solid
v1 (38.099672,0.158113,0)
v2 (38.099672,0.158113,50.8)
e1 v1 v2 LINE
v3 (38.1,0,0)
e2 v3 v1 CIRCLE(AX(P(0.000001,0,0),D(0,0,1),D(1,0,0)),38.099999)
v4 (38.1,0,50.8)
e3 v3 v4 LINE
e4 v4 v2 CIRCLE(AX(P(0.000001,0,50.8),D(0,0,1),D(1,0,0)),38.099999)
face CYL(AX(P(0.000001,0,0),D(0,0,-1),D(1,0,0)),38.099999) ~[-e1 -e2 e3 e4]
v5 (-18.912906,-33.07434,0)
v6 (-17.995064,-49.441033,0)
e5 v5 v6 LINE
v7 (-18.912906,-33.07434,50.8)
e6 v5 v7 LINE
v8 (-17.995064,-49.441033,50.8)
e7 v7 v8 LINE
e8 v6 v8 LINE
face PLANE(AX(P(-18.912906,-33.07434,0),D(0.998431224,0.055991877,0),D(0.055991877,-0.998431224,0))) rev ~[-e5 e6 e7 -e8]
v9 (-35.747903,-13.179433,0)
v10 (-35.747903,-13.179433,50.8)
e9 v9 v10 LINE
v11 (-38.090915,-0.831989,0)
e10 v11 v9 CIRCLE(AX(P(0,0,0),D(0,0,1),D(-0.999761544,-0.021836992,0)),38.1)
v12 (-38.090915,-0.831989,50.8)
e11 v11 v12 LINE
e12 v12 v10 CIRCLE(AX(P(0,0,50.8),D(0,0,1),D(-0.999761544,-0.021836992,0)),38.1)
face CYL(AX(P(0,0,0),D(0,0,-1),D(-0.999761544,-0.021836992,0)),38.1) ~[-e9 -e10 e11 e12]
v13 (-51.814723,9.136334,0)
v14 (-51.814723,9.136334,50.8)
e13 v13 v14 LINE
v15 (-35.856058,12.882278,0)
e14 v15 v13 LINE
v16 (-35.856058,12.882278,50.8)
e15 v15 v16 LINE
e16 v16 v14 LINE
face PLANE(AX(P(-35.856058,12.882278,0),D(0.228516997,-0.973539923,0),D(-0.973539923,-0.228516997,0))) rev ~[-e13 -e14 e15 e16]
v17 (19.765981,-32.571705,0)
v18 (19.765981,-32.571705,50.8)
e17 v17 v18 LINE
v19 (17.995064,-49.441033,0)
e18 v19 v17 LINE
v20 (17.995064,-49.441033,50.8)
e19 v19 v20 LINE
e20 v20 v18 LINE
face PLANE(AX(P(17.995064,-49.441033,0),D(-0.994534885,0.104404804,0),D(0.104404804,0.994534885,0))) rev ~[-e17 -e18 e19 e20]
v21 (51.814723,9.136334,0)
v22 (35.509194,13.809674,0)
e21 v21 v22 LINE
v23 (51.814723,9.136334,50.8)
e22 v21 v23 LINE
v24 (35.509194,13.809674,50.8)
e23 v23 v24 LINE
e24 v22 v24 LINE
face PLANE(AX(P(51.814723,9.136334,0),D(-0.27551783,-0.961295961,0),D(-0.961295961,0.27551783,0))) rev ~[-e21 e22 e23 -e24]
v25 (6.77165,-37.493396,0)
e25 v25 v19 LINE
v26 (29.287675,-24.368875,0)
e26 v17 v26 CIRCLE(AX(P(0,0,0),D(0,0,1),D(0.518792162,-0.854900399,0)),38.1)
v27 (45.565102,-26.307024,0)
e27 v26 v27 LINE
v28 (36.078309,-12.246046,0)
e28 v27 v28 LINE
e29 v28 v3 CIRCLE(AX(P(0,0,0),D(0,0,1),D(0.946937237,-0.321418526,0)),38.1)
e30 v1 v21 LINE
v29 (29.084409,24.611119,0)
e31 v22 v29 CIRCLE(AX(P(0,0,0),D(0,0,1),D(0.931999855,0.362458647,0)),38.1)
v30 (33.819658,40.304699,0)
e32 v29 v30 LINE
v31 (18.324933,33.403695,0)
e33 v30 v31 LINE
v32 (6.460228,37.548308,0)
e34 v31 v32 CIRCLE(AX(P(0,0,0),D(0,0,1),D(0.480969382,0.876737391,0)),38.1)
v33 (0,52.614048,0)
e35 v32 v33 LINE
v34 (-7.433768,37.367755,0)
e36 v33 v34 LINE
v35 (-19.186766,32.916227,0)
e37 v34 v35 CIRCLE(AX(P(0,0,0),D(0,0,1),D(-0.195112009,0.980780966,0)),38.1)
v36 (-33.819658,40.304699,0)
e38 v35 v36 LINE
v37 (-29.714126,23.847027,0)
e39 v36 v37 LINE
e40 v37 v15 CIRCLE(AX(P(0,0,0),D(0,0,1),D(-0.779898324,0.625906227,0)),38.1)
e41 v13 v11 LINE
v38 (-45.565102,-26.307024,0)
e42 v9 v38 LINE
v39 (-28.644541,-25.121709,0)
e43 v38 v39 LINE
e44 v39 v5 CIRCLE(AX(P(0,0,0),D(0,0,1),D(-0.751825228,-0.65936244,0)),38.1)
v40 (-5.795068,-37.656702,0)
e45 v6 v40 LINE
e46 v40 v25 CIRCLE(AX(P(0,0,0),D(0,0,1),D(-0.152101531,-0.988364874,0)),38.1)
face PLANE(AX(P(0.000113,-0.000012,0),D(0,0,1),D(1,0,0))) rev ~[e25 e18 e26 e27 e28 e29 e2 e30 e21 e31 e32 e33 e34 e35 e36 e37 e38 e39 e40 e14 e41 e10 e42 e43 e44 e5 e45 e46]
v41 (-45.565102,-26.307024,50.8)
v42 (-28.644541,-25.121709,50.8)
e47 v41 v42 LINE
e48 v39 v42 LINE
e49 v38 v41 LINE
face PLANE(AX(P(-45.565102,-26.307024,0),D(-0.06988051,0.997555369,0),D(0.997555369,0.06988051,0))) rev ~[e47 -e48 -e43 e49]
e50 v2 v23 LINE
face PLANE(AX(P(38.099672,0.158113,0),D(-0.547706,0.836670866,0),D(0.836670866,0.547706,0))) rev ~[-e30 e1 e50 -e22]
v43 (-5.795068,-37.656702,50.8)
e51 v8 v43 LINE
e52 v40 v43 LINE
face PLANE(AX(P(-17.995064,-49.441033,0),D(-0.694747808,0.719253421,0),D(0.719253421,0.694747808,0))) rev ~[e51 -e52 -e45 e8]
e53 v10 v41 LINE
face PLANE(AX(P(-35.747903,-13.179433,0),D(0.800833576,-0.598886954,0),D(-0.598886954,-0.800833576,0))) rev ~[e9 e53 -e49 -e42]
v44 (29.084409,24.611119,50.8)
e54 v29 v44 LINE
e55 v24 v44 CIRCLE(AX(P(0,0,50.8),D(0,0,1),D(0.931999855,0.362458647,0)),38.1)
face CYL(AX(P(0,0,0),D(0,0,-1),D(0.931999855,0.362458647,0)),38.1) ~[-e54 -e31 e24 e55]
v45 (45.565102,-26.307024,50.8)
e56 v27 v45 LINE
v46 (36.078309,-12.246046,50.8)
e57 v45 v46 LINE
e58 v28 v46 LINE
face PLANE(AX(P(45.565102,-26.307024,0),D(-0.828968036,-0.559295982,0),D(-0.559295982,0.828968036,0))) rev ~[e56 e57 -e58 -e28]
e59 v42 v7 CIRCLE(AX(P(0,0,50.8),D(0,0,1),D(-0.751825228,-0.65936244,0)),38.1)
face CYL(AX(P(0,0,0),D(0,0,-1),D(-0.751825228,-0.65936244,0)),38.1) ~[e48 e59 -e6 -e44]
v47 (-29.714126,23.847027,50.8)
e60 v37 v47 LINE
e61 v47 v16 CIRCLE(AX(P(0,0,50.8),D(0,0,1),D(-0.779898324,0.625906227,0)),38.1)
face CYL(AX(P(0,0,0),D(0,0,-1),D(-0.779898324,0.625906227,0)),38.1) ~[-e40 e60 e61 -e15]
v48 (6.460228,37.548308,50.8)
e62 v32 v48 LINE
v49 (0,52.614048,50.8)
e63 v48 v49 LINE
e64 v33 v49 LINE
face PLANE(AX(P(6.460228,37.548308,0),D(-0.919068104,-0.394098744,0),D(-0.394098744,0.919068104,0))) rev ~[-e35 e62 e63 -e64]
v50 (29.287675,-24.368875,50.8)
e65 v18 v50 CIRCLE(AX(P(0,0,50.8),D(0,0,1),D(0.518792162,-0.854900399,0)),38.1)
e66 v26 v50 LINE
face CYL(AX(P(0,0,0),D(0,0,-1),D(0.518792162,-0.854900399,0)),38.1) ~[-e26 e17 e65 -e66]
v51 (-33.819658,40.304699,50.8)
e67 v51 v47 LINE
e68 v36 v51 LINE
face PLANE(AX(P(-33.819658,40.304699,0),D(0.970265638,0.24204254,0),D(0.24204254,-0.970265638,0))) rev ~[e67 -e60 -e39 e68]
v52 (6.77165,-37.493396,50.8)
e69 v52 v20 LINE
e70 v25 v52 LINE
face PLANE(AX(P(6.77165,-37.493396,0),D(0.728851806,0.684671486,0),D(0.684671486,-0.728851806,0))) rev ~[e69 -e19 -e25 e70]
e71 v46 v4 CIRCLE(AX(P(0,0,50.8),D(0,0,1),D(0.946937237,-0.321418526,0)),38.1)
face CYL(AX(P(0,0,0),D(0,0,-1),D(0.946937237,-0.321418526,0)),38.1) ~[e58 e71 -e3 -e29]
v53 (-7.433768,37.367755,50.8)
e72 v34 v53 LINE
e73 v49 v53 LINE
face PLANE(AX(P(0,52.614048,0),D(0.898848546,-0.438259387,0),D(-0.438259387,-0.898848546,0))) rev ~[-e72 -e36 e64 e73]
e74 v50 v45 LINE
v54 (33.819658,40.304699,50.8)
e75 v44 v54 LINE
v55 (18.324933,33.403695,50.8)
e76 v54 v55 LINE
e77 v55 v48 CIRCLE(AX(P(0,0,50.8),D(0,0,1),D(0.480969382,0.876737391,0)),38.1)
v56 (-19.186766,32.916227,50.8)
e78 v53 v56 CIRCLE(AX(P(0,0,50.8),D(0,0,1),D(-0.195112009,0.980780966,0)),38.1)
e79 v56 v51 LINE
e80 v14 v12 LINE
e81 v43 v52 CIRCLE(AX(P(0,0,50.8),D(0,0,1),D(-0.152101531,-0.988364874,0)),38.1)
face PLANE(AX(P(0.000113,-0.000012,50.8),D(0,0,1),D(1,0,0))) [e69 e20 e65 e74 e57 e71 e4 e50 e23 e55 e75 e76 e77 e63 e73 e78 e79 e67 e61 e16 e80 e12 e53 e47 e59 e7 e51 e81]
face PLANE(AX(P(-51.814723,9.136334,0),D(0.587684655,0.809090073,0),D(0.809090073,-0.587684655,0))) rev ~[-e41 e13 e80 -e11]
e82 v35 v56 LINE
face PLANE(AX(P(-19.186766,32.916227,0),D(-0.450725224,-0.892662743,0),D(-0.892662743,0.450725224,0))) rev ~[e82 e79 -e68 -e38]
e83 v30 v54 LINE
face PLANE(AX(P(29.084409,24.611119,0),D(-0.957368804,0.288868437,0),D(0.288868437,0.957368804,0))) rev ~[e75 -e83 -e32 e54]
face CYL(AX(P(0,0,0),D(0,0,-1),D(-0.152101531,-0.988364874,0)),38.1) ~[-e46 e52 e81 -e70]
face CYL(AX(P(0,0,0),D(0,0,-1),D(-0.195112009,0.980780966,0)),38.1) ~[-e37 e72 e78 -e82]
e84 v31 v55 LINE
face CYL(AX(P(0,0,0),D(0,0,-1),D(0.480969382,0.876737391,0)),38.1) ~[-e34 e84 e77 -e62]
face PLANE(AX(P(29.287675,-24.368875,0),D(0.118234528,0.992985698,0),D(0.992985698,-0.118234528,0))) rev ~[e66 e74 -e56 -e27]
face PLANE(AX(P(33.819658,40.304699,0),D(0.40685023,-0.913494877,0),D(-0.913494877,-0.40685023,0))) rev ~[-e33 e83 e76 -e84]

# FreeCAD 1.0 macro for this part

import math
import FreeCAD as App
import Part
import Sketcher

V = App.Vector
Q = App.Units.Quantity

doc = App.newDocument("Part")
body = doc.addObject("PartDesign::Body", "Body")

# Sketch on XY plane
sketch1 = body.newObject("Sketcher::SketchObject", "Sketch")
sketch1.AttachmentSupport = (doc.getObject("XY_Plane"), [""])
sketch1.MapMode = "FlatFace"
sketch1.addGeometry([
    Part.ArcOfCircle(Part.Circle(V(0, 0, 0), V(0, 0, 1), 38.1), math.radians(-18.748733), math.radians(0)),  # 0
    Part.ArcOfCircle(Part.Circle(V(0.000001, 0, 0), V(0, 0, 1), 38.099999), math.radians(0), math.radians(0.237775)),  # 1
    Part.LineSegment(V(38.099672, 0.158113, 0), V(51.814723, 9.136334, 0)),  # 2
    Part.LineSegment(V(51.814723, 9.136334, 0), V(35.509194, 13.809674, 0)),  # 3
    Part.ArcOfCircle(Part.Circle(V(0, 0, 0), V(0, 0, 1), 38.1), math.radians(21.251267), math.radians(40.237775)),  # 4
    Part.LineSegment(V(29.084409, 24.611119, 0), V(33.819658, 40.304699, 0)),  # 5
    Part.LineSegment(V(33.819658, 40.304699, 0), V(18.324933, 33.403695, 0)),  # 6
    Part.ArcOfCircle(Part.Circle(V(0, 0, 0), V(0, 0, 1), 38.1), math.radians(61.251267), math.radians(80.237775)),  # 7
    Part.LineSegment(V(6.460228, 37.548308, 0), V(0, 52.614048, 0)),  # 8
    Part.LineSegment(V(0, 52.614048, 0), V(-7.433768, 37.367755, 0)),  # 9
    Part.ArcOfCircle(Part.Circle(V(0, 0, 0), V(0, 0, 1), 38.1), math.radians(101.251267), math.radians(120.237775)),  # 10
    Part.LineSegment(V(-19.186766, 32.916227, 0), V(-33.819658, 40.304699, 0)),  # 11
    Part.LineSegment(V(-33.819658, 40.304699, 0), V(-29.714126, 23.847027, 0)),  # 12
    Part.ArcOfCircle(Part.Circle(V(0, 0, 0), V(0, 0, 1), 38.1), math.radians(141.251267), math.radians(160.237775)),  # 13
    Part.LineSegment(V(-35.856058, 12.882278, 0), V(-51.814723, 9.136334, 0)),  # 14
    Part.LineSegment(V(-51.814723, 9.136334, 0), V(-38.090915, -0.831989, 0)),  # 15
    Part.ArcOfCircle(Part.Circle(V(0, 0, 0), V(0, 0, 1), 38.1), math.radians(-178.748733), math.radians(-159.762225)),  # 16
    Part.LineSegment(V(-35.747903, -13.179433, 0), V(-45.565102, -26.307024, 0)),  # 17
    Part.LineSegment(V(-45.565102, -26.307024, 0), V(-28.644541, -25.121709, 0)),  # 18
    Part.ArcOfCircle(Part.Circle(V(0, 0, 0), V(0, 0, 1), 38.1), math.radians(-138.748733), math.radians(-119.762225)),  # 19
    Part.LineSegment(V(-18.912906, -33.07434, 0), V(-17.995064, -49.441033, 0)),  # 20
    Part.LineSegment(V(-17.995064, -49.441033, 0), V(-5.795068, -37.656702, 0)),  # 21
    Part.ArcOfCircle(Part.Circle(V(0, 0, 0), V(0, 0, 1), 38.1), math.radians(-98.748733), math.radians(-79.762225)),  # 22
    Part.LineSegment(V(6.77165, -37.493396, 0), V(17.995064, -49.441033, 0)),  # 23
    Part.LineSegment(V(17.995064, -49.441033, 0), V(19.765981, -32.571705, 0)),  # 24
    Part.ArcOfCircle(Part.Circle(V(0, 0, 0), V(0, 0, 1), 38.1), math.radians(-58.748733), math.radians(-39.762225)),  # 25
    Part.LineSegment(V(29.287675, -24.368875, 0), V(45.565102, -26.307024, 0)),  # 26
    Part.LineSegment(V(45.565102, -26.307024, 0), V(36.078309, -12.246046, 0)),  # 27
], False)
sketch1.addConstraint([
    Sketcher.Constraint("Tangent", 0, 2, 1, 1),
    Sketcher.Constraint("Coincident", 1, 2, 2, 1),
    Sketcher.Constraint("Coincident", 2, 2, 3, 1),
    Sketcher.Constraint("Coincident", 3, 2, 4, 1),
    Sketcher.Constraint("Coincident", 4, 2, 5, 1),
    Sketcher.Constraint("Coincident", 5, 2, 6, 1),
    Sketcher.Constraint("Coincident", 6, 2, 7, 1),
    Sketcher.Constraint("Coincident", 7, 2, 8, 1),
    Sketcher.Constraint("Coincident", 8, 2, 9, 1),
    Sketcher.Constraint("Coincident", 9, 2, 10, 1),
    Sketcher.Constraint("Coincident", 10, 2, 11, 1),
    Sketcher.Constraint("Coincident", 11, 2, 12, 1),
    Sketcher.Constraint("Coincident", 12, 2, 13, 1),
    Sketcher.Constraint("Coincident", 13, 2, 14, 1),
    Sketcher.Constraint("Coincident", 14, 2, 15, 1),
    Sketcher.Constraint("Coincident", 15, 2, 16, 1),
    Sketcher.Constraint("Coincident", 16, 2, 17, 1),
    Sketcher.Constraint("Coincident", 17, 2, 18, 1),
    Sketcher.Constraint("Coincident", 18, 2, 19, 1),
    Sketcher.Constraint("Coincident", 19, 2, 20, 1),
    Sketcher.Constraint("Coincident", 20, 2, 21, 1),
    Sketcher.Constraint("Coincident", 21, 2, 22, 1),
    Sketcher.Constraint("Coincident", 22, 2, 23, 1),
    Sketcher.Constraint("Coincident", 23, 2, 24, 1),
    Sketcher.Constraint("Coincident", 24, 2, 25, 1),
    Sketcher.Constraint("Coincident", 25, 2, 26, 1),
    Sketcher.Constraint("Coincident", 26, 2, 27, 1),
    Sketcher.Constraint("Coincident", 27, 2, 0, 1),
    Sketcher.Constraint("Coincident", 0, 3, -1, 1),
    Sketcher.Constraint("Coincident", 4, 3, -1, 1),
    Sketcher.Constraint("Coincident", 7, 3, -1, 1),
    Sketcher.Constraint("Coincident", 10, 3, -1, 1),
    Sketcher.Constraint("Coincident", 13, 3, -1, 1),
    Sketcher.Constraint("Coincident", 16, 3, -1, 1),
    Sketcher.Constraint("Coincident", 19, 3, -1, 1),
    Sketcher.Constraint("Coincident", 22, 3, -1, 1),
    Sketcher.Constraint("Coincident", 25, 3, -1, 1),
    Sketcher.Constraint("Equal", 0, 1),
    Sketcher.Constraint("Equal", 1, 4),
    Sketcher.Constraint("Equal", 4, 7),
    Sketcher.Constraint("Equal", 7, 10),
    Sketcher.Constraint("Equal", 10, 13),
    Sketcher.Constraint("Equal", 13, 16),
    Sketcher.Constraint("Equal", 16, 19),
    Sketcher.Constraint("Equal", 19, 22),
    Sketcher.Constraint("Equal", 22, 25),
    Sketcher.Constraint("Symmetric", 5, 2, 11, 2, -2),
    Sketcher.Constraint("Symmetric", 2, 2, 14, 2, -2),
    Sketcher.Constraint("Symmetric", 20, 2, 23, 2, -2),
    Sketcher.Constraint("Symmetric", 17, 2, 26, 2, -2),
    Sketcher.Constraint("PointOnObject", 0, 2, -1),
    Sketcher.Constraint("PointOnObject", 8, 2, -2),
    Sketcher.Constraint("Equal", 2, 5),
    Sketcher.Constraint("Equal", 3, 6),
    Sketcher.Constraint("Equal", 5, 8),
    Sketcher.Constraint("Equal", 6, 9),
    Sketcher.Constraint("Equal", 8, 11),
    Sketcher.Constraint("Equal", 9, 12),
    Sketcher.Constraint("Equal", 11, 14),
    Sketcher.Constraint("Equal", 12, 15),
    Sketcher.Constraint("Equal", 14, 17),
    Sketcher.Constraint("Equal", 15, 18),
    Sketcher.Constraint("Equal", 17, 20),
    Sketcher.Constraint("Equal", 18, 21),
    Sketcher.Constraint("Equal", 20, 23),
    Sketcher.Constraint("Equal", 21, 24),
    Sketcher.Constraint("Equal", 23, 26),
    Sketcher.Constraint("Equal", 24, 27),
    Sketcher.Constraint("Radius", 0, Q("1.5 in")),
    Sketcher.Constraint("DistanceY", -1, 1, 5, 2, Q("40.304699 mm")),
    Sketcher.Constraint("DistanceY", 21, 2, -1, 1, Q("37.656702 mm")),
    Sketcher.Constraint("DistanceX", 9, 2, 6, 2, Q("25.758701 mm")),
    Sketcher.Constraint("DistanceX", 10, 2, 9, 2, Q("11.752998 mm")),
    Sketcher.Constraint("DistanceY", 12, 2, 10, 2, Q("9.0692 mm")),
    Sketcher.Constraint("DistanceX", 13, 2, 11, 2, Q("2.0364 mm")),
    Sketcher.Constraint("DistanceX", 17, 2, 16, 2, Q("9.8172 mm")),
    Sketcher.Constraint("DistanceY", 17, 2, 13, 2, Q("39.189302 mm")),
    Sketcher.Constraint("DistanceY", 20, 2, 16, 2, Q("36.2616 mm")),
    Sketcher.Constraint("Distance", 2, Q("16.392408 mm")),
    Sketcher.Constraint("DistanceY", 15, 2, -1, 1, Q("0.831989 mm")),
])
pad1 = body.newObject("PartDesign::Pad", "Pad")
pad1.Profile = sketch1
pad1.Length = Q("2 in")

doc.recompute()
